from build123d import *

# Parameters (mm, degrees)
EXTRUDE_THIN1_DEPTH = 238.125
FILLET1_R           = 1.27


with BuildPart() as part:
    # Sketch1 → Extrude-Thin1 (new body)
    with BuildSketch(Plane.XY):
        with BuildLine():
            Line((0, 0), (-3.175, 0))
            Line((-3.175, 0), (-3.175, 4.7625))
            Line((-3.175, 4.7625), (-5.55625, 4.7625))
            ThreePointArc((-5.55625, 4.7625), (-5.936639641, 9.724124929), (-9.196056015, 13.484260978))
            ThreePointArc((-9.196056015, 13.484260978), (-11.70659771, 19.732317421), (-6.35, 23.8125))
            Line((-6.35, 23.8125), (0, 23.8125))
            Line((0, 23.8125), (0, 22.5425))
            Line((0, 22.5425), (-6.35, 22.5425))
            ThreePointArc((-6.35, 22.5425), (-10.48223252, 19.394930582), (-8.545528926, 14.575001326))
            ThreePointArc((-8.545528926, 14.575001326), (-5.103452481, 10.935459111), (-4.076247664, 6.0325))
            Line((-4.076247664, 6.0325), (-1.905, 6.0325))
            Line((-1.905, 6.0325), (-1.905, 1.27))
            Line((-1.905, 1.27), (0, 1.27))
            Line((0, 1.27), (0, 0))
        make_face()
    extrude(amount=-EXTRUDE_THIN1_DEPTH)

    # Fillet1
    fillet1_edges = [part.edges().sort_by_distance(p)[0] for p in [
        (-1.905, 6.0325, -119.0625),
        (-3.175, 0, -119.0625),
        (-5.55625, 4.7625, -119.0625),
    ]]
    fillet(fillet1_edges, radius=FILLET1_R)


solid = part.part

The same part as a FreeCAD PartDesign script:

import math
import FreeCAD as App
import Part
import Sketcher
from FreeCAD import Vector
Q = App.Units.Quantity


def edges_at(feature, points):
    """Names of the edges that pass closest to the given points."""
    edges = feature.Shape.Edges
    near = lambda p: min(range(len(edges)), key=lambda i: edges[i].distToShape(Part.Vertex(*p))[0])
    return sorted({f"Edge{near(p) + 1}" for p in points})

doc = App.newDocument("Part")
body = doc.addObject("PartDesign::Body", "Body")

sketch1 = body.newObject("Sketcher::SketchObject", "Sketch")
sketch1.AttachmentSupport = (doc.getObject("XY_Plane"), [""])
sketch1.MapMode = "FlatFace"
sketch1.addGeometry(Part.LineSegment(Vector(-3.2, 0, 0), Vector(0, 0, 0)), False)
sketch1.addGeometry(Part.LineSegment(Vector(0, 0, 0), Vector(0, 1.3, 0)), False)
sketch1.addGeometry(Part.LineSegment(Vector(0, 1.3, 0), Vector(-1.9, 1.3, 0)), False)
sketch1.addGeometry(Part.LineSegment(Vector(-1.9, 1.3, 0), Vector(-1.9, 6, 0)), False)
sketch1.addGeometry(Part.LineSegment(Vector(-1.9, 6, 0), Vector(-4.1, 6, 0)), False)
sketch1.addGeometry(Part.ArcOfCircle(Part.Circle(Vector(-13.3, 6.7, 0), Vector(0, 0, 1), 9.2), math.radians(-4), math.radians(59)), False)
sketch1.addGeometry(Part.ArcOfCircle(Part.Circle(Vector(-6.4, 18.3, 0), Vector(0, 0, 1), 4.3), math.radians(90), math.radians(239)), False)
sketch1.addGeometry(Part.LineSegment(Vector(-6.3, 22.5, 0), Vector(0, 22.5, 0)), False)
sketch1.addGeometry(Part.LineSegment(Vector(0, 22.5, 0), Vector(0, 23.8, 0)), False)
sketch1.addGeometry(Part.LineSegment(Vector(0, 23.8, 0), Vector(-6.3, 23.8, 0)), False)
sketch1.addGeometry(Part.ArcOfCircle(Part.Circle(Vector(-6.3, 18.3, 0), Vector(0, 0, 1), 5.6), math.radians(90), math.radians(239)), False)
sketch1.addGeometry(Part.ArcOfCircle(Part.Circle(Vector(-13.3, 6.7, 0), Vector(0, 0, 1), 7.9), math.radians(-14), math.radians(59)), False)
sketch1.addGeometry(Part.LineSegment(Vector(-5.6, 4.8, 0), Vector(-3.2, 4.8, 0)), False)
sketch1.addGeometry(Part.LineSegment(Vector(-3.2, 4.8, 0), Vector(-3.2, 0, 0)), False)
sketch1.addConstraint(Sketcher.Constraint("Coincident", 0, 2, 1, 1))
sketch1.addConstraint(Sketcher.Constraint("Coincident", 1, 2, 2, 1))
sketch1.addConstraint(Sketcher.Constraint("Coincident", 2, 2, 3, 1))
sketch1.addConstraint(Sketcher.Constraint("Coincident", 3, 2, 4, 1))
sketch1.addConstraint(Sketcher.Constraint("Coincident", 4, 2, 5, 1))
sketch1.addConstraint(Sketcher.Constraint("Tangent", 5, 2, 6, 2))
sketch1.addConstraint(Sketcher.Constraint("Tangent", 6, 1, 7, 1))
sketch1.addConstraint(Sketcher.Constraint("Coincident", 7, 2, 8, 1))
sketch1.addConstraint(Sketcher.Constraint("Coincident", 8, 2, 9, 1))
sketch1.addConstraint(Sketcher.Constraint("Tangent", 9, 2, 10, 1))
sketch1.addConstraint(Sketcher.Constraint("Tangent", 10, 2, 11, 2))
sketch1.addConstraint(Sketcher.Constraint("Coincident", 11, 1, 12, 1))
sketch1.addConstraint(Sketcher.Constraint("Coincident", 12, 2, 13, 1))
sketch1.addConstraint(Sketcher.Constraint("Coincident", 13, 2, 0, 1))
sketch1.addConstraint(Sketcher.Constraint("Horizontal", 0))
sketch1.addConstraint(Sketcher.Constraint("Vertical", 1))
sketch1.addConstraint(Sketcher.Constraint("Horizontal", 2))
sketch1.addConstraint(Sketcher.Constraint("Vertical", 3))
sketch1.addConstraint(Sketcher.Constraint("Horizontal", 4))
sketch1.addConstraint(Sketcher.Constraint("Horizontal", 7))
sketch1.addConstraint(Sketcher.Constraint("Vertical", 8))
sketch1.addConstraint(Sketcher.Constraint("Horizontal", 9))
sketch1.addConstraint(Sketcher.Constraint("Horizontal", 12))
sketch1.addConstraint(Sketcher.Constraint("Vertical", 13))
sketch1.addConstraint(Sketcher.Constraint("Coincident", 0, 2, -1, 1))
sketch1.addConstraint(Sketcher.Constraint("Coincident", 10, 3, 6, 3))
sketch1.addConstraint(Sketcher.Constraint("Coincident", 11, 3, 5, 3))
sketch1.addConstraint(Sketcher.Constraint("PointOnObject", 7, 2, -2))
sketch1.addConstraint(Sketcher.Constraint("Equal", 1, 8))
sketch1.addConstraint(Sketcher.Constraint("Equal", 3, 13))
sketch1.addConstraint(Sketcher.Constraint("Radius", 10, Q("0.21875 in")))
sketch1.addConstraint(Sketcher.Constraint("Radius", 11, Q("0.3125 in")))
sketch1.addConstraint(Sketcher.Constraint("DistanceX", 7, 1, 7, 2, Q("0.25 in")))
sketch1.addConstraint(Sketcher.Constraint("DistanceY", 1, 1, 1, 2, Q("0.05 in")))
sketch1.addConstraint(Sketcher.Constraint("DistanceX", 0, 1, 0, 2, Q("0.125 in")))
sketch1.addConstraint(Sketcher.Constraint("DistanceX", 2, 2, 2, 1, Q("0.075 in")))
sketch1.addConstraint(Sketcher.Constraint("DistanceX", 12, 1, 12, 2, Q("0.09375 in")))
sketch1.addConstraint(Sketcher.Constraint("DistanceY", 3, 1, 3, 2, Q("0.1875 in")))
sketch1.addConstraint(Sketcher.Constraint("DistanceY", 4, 2, 6, 1, Q("0.65 in")))
pad1 = body.newObject("PartDesign::Pad", "Pad")
pad1.Profile = sketch1
pad1.Length = Q("9.375 in")
pad1.Reversed = True
doc.recompute()

fillet = body.newObject("PartDesign::Fillet", "Fillet")
fillet.Base = (pad1, edges_at(pad1, [(-1.905, 6.032, -119.062), (-3.175, 0, -119.062), (-5.556, 4.763, -119.062)]))
fillet.Radius = Q("0.05 in")

doc.recompute()
